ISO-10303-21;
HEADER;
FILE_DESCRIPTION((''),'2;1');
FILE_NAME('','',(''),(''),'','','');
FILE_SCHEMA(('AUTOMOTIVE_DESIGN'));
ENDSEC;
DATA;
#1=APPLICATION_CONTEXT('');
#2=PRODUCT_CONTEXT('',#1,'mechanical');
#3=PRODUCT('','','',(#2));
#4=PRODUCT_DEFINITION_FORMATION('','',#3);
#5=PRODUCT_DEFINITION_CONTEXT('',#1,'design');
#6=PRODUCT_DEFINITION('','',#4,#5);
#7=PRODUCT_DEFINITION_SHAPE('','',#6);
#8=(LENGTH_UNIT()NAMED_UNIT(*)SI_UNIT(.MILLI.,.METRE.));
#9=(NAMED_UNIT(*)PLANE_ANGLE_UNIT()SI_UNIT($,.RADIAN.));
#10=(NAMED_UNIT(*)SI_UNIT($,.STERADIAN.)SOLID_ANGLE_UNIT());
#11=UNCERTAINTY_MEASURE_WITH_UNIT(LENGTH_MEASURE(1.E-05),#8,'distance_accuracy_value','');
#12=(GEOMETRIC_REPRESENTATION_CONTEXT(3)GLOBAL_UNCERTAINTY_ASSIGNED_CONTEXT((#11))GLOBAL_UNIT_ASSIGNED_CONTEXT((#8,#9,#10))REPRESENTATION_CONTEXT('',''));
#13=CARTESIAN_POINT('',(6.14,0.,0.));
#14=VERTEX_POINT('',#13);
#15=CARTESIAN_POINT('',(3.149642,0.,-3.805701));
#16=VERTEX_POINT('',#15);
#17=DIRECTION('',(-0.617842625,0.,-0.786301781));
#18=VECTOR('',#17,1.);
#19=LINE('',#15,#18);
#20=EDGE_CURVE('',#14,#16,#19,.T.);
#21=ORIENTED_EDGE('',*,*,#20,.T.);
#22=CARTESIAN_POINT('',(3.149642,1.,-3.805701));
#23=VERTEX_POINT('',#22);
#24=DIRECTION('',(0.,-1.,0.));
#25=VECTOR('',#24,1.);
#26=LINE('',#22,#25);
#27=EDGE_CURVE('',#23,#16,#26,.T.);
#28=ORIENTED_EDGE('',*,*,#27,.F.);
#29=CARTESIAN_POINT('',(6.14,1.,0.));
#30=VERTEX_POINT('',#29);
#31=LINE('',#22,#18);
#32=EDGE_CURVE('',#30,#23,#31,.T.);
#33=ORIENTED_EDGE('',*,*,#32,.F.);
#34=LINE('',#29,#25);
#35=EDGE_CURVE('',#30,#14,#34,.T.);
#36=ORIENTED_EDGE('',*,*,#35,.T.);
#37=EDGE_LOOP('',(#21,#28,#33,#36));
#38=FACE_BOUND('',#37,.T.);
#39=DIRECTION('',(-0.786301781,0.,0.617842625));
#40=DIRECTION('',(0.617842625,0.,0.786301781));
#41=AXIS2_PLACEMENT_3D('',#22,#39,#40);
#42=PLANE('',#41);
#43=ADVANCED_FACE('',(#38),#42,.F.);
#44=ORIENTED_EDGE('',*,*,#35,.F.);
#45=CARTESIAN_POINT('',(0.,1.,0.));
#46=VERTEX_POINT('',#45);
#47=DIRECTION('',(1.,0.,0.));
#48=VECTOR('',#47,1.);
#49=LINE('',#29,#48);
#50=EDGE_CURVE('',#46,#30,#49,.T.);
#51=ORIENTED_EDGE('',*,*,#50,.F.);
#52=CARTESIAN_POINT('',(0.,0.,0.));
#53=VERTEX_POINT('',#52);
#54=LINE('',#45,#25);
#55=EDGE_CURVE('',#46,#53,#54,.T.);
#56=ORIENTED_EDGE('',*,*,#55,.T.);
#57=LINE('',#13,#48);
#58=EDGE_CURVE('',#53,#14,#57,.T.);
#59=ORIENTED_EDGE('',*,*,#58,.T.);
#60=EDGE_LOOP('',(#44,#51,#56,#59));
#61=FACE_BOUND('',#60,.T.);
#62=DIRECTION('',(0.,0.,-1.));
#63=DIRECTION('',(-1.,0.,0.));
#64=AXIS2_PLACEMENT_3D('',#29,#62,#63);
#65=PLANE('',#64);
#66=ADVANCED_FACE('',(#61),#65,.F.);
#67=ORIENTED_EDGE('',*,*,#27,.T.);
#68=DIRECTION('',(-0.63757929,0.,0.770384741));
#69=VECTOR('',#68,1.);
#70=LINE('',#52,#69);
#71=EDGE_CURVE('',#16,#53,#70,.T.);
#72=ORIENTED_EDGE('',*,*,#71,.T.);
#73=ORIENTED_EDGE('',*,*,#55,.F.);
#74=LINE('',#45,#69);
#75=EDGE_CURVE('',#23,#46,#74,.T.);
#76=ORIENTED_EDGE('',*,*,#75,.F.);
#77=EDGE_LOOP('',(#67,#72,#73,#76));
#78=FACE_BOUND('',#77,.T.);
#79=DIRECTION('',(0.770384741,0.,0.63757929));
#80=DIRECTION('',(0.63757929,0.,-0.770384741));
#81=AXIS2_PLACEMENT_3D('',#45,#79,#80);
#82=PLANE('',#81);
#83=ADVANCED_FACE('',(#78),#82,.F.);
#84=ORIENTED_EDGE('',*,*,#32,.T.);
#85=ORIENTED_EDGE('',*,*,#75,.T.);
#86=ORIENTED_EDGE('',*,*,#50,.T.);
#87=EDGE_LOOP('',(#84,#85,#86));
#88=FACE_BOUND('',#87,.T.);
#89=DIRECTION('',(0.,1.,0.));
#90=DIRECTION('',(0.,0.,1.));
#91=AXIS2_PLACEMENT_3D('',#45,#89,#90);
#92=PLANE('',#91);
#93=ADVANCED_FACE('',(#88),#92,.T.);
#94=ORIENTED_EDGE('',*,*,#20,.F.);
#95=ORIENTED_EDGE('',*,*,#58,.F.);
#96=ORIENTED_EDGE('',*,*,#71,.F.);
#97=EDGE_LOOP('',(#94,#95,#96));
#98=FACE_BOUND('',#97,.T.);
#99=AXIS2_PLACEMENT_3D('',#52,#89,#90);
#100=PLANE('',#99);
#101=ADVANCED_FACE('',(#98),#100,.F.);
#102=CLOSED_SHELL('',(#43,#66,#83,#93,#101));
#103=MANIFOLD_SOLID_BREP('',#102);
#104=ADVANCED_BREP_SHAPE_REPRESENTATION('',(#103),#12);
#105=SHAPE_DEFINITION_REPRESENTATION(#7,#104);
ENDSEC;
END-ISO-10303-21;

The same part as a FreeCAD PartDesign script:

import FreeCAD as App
import Part
import Sketcher
from FreeCAD import Vector
Q = App.Units.Quantity


def add_polygon(sketch, points):
    """Adds a closed chain of lines whose ends are joined by coincident constraints."""
    first, n = sketch.GeometryCount, len(points)
    for a, b in zip(points, points[1:] + points[:1]):
        sketch.addGeometry(Part.LineSegment(App.Vector(*a, 0), App.Vector(*b, 0)), False)
    for i in range(n):
        sketch.addConstraint(Sketcher.Constraint("Coincident", first + i, 2, first + (i + 1) % n, 1))

doc = App.newDocument("Part")
body = doc.addObject("PartDesign::Body", "Body")

sketch1 = doc.addObject("Sketcher::SketchObject", "Sketch")
body.addObject(sketch1)
sketch1.AttachmentSupport = (doc.XZ_Plane, [""])
sketch1.MapMode = "FlatFace"
add_polygon(sketch1, [(3.1, -3.8), (0, 0), (6.1, 0)])
sketch1.addConstraint(Sketcher.Constraint("Horizontal", 1))
sketch1.addConstraint(Sketcher.Constraint("Coincident", 0, 2, -1, 1))
sketch1.addConstraint(Sketcher.Constraint("DistanceX", 1, 1, 1, 2, Q("6.14 mm")))
sketch1.addConstraint(Sketcher.Constraint("Distance", 0, Q("4.94 mm")))
sketch1.addConstraint(Sketcher.Constraint("Distance", 2, Q("4.84 mm")))
pad1 = doc.addObject("PartDesign::Pad", "Pad")
body.addObject(pad1)
pad1.Profile = sketch1
pad1.Length = 1
pad1.Reversed = True

doc.recompute()
